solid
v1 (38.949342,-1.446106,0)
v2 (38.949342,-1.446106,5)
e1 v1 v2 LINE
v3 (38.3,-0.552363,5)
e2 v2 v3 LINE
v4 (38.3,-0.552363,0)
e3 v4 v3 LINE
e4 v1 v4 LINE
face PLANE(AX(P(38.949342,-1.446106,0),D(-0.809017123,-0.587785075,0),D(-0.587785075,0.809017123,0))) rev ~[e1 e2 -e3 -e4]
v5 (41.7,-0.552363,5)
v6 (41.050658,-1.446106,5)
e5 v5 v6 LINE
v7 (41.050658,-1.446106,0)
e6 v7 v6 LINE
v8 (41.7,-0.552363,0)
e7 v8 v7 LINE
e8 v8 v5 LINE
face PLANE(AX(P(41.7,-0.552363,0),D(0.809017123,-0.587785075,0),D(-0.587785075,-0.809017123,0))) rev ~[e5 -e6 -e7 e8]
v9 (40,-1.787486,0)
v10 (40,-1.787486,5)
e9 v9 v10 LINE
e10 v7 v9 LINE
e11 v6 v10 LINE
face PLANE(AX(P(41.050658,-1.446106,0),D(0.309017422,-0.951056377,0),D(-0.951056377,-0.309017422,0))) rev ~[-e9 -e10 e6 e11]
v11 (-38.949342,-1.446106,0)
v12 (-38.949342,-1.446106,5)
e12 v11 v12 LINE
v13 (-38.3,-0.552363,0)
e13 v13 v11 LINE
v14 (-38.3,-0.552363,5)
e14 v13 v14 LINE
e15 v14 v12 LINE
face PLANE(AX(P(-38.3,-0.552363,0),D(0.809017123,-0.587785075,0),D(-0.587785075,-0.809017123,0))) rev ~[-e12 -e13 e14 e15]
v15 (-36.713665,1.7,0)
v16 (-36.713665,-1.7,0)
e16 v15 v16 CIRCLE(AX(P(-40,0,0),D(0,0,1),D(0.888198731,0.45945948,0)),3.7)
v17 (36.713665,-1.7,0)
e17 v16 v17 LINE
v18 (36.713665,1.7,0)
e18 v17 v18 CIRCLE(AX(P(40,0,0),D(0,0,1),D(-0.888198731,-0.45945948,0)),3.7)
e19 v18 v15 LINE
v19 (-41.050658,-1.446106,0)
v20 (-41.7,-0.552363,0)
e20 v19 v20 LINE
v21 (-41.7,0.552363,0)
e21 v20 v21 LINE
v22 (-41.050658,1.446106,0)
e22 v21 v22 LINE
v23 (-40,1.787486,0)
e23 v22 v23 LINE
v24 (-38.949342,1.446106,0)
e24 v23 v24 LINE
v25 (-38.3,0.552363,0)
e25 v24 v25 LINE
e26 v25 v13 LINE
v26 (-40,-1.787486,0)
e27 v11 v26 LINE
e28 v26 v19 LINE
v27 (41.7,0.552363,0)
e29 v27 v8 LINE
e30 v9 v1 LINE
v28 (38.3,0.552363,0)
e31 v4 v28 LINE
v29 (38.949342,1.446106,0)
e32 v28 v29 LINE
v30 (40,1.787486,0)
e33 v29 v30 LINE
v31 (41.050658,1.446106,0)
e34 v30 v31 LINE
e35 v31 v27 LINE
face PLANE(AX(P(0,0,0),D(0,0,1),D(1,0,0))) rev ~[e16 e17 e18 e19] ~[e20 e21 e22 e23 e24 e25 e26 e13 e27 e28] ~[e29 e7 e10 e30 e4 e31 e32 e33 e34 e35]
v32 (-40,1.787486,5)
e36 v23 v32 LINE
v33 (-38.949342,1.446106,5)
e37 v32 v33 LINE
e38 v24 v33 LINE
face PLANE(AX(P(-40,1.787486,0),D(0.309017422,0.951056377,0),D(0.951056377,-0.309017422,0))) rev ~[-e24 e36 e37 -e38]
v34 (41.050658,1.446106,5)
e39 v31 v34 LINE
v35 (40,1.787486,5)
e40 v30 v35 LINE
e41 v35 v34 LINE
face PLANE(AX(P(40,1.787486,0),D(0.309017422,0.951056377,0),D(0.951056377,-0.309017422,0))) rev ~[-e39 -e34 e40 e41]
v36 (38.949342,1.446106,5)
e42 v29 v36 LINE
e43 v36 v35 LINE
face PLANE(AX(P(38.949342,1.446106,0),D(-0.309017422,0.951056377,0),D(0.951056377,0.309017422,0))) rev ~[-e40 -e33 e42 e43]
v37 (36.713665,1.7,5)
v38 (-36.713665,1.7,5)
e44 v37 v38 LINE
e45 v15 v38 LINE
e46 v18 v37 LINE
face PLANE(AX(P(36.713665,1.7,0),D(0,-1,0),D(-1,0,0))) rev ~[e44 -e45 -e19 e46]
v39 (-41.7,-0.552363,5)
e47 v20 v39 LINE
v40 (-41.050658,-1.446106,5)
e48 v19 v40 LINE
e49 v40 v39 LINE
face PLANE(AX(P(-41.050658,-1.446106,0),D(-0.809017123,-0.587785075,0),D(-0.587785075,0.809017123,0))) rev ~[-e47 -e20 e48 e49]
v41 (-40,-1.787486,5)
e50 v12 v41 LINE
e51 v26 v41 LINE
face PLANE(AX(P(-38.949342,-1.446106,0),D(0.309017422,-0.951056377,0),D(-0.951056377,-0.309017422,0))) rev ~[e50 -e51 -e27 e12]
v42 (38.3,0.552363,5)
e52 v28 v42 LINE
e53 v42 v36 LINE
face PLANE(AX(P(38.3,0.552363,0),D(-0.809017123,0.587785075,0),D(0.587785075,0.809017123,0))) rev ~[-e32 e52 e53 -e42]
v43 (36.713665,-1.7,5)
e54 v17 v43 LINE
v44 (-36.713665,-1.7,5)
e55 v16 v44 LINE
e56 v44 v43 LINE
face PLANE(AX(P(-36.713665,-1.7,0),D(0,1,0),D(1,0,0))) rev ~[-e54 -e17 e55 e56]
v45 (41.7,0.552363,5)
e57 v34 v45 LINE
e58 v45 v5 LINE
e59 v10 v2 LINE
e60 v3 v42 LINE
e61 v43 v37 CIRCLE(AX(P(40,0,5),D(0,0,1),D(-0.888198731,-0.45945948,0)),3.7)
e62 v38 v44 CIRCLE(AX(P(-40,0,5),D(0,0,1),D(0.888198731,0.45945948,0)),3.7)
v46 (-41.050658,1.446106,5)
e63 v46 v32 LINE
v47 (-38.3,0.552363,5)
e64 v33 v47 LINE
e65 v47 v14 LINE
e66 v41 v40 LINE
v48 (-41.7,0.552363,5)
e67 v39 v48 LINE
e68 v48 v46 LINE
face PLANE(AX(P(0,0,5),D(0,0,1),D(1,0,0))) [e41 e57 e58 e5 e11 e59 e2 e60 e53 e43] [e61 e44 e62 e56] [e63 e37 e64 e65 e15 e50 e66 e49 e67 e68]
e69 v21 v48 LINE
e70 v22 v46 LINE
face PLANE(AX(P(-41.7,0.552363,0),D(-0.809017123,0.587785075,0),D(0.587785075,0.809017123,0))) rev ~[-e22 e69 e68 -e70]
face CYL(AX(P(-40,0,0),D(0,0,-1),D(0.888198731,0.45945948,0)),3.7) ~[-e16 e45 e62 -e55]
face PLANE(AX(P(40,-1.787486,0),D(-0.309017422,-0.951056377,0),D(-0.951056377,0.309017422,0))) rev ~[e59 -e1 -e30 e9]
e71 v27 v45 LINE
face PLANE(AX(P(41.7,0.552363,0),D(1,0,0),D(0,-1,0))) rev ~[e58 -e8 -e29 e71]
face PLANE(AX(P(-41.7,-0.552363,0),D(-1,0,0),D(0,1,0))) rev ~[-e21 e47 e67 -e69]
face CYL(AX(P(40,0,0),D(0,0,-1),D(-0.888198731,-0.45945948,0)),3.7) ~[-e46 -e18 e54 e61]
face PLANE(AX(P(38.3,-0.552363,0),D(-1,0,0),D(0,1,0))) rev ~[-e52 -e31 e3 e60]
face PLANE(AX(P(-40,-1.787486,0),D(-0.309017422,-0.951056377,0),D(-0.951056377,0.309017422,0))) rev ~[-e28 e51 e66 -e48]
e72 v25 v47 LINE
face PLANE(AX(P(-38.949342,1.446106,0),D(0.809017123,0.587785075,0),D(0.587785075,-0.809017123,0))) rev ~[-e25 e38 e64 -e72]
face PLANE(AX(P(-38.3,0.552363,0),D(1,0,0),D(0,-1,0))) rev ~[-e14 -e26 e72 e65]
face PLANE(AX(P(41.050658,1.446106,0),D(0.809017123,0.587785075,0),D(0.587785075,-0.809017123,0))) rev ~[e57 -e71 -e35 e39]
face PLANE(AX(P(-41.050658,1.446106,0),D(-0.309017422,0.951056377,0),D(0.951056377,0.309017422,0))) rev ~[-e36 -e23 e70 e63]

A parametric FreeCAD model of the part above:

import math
import FreeCAD as App
import Part
import Sketcher
Q = App.Units.Quantity


def add_polygon(sketch, points):
    """Adds a closed chain of lines whose ends are joined by coincident constraints."""
    first, n = sketch.GeometryCount, len(points)
    for a, b in zip(points, points[1:] + points[:1]):
        sketch.addGeometry(Part.LineSegment(App.Vector(*a, 0), App.Vector(*b, 0)), False)
    for i in range(n):
        sketch.addConstraint(Sketcher.Constraint("Coincident", first + i, 2, first + (i + 1) % n, 1))

doc = App.newDocument("Part")
body = doc.addObject("PartDesign::Body", "Body")

# Sketch on XY plane
sketch1 = body.newObject("Sketcher::SketchObject", "Sketch")
sketch1.AttachmentSupport = (doc.getObject("XY_Plane"), [""])
sketch1.MapMode = "FlatFace"
sketch1.addGeometry(Part.LineSegment(App.Vector(36.7, 1.7, 0), App.Vector(-36.7, 1.7, 0)), False)  # 0
sketch1.addGeometry(Part.ArcOfCircle(Part.Circle(App.Vector(-40, 0, 0), App.Vector(0, 0, 1), 3.7), math.radians(27), math.radians(333)), False)  # 1
sketch1.addGeometry(Part.LineSegment(App.Vector(-36.7, -1.7, 0), App.Vector(36.7, -1.7, 0)), False)  # 2
sketch1.addGeometry(Part.ArcOfCircle(Part.Circle(App.Vector(40, 0, 0), App.Vector(0, 0, 1), 3.7), math.radians(-153), math.radians(153)), False)  # 3
add_polygon(sketch1, [(-40, -1.8), (-41.1, -1.4), (-41.7, -0.6), (-41.7, 0.6), (-41.1, 1.4), (-40, 1.8), (-38.9, 1.4), (-38.3, 0.6), (-38.3, -0.6), (-38.9, -1.4)])  # lines 4-13
add_polygon(sketch1, [(40, 1.8), (41.1, 1.4), (41.7, 0.6), (41.7, -0.6), (41.1, -1.4), (40, -1.8), (38.9, -1.4), (38.3, -0.6), (38.3, 0.6), (38.9, 1.4)])  # lines 14-23
sketch1.addConstraint(Sketcher.Constraint("Coincident", 0, 2, 1, 1))
sketch1.addConstraint(Sketcher.Constraint("Coincident", 1, 2, 2, 1))
sketch1.addConstraint(Sketcher.Constraint("Coincident", 2, 2, 3, 1))
sketch1.addConstraint(Sketcher.Constraint("Coincident", 3, 2, 0, 1))
sketch1.addConstraint(Sketcher.Constraint("Horizontal", 0))
sketch1.addConstraint(Sketcher.Constraint("Horizontal", 2))
sketch1.addConstraint(Sketcher.Constraint("Vertical", 6))
sketch1.addConstraint(Sketcher.Constraint("Vertical", 11))
sketch1.addConstraint(Sketcher.Constraint("Vertical", 16))
sketch1.addConstraint(Sketcher.Constraint("Vertical", 21))
sketch1.addConstraint(Sketcher.Constraint("Equal", 1, 3))
sketch1.addConstraint(Sketcher.Constraint("Symmetric", 1, 3, 3, 3, -1, 1))
sketch1.addConstraint(Sketcher.Constraint("Symmetric", 4, 2, 14, 2, -1, 1))
sketch1.addConstraint(Sketcher.Constraint("Symmetric", 5, 2, 15, 2, -1, 1))
sketch1.addConstraint(Sketcher.Constraint("Symmetric", 7, 2, 17, 2, -1, 1))
sketch1.addConstraint(Sketcher.Constraint("Symmetric", 8, 2, 18, 2, -1, 1))
sketch1.addConstraint(Sketcher.Constraint("Symmetric", 9, 2, 19, 2, -1, 1))
sketch1.addConstraint(Sketcher.Constraint("Symmetric", 10, 2, 20, 2, -1, 1))
sketch1.addConstraint(Sketcher.Constraint("Symmetric", 12, 2, 22, 2, -1, 1))
sketch1.addConstraint(Sketcher.Constraint("Symmetric", 13, 2, 23, 2, -1, 1))
sketch1.addConstraint(Sketcher.Constraint("Symmetric", 7, 2, 14, 2, -2))
sketch1.addConstraint(Sketcher.Constraint("Symmetric", 13, 2, 18, 2, -2))
sketch1.addConstraint(Sketcher.Constraint("Symmetric", 12, 2, 19, 2, -2))
sketch1.addConstraint(Sketcher.Constraint("Symmetric", 0, 2, 1, 2, -1))
sketch1.addConstraint(Sketcher.Constraint("Parallel", 4, 9))
sketch1.addConstraint(Sketcher.Constraint("Parallel", 5, 10))
sketch1.addConstraint(Sketcher.Constraint("Parallel", 7, 12))
sketch1.addConstraint(Sketcher.Constraint("Parallel", 12, 17))
sketch1.addConstraint(Sketcher.Constraint("Parallel", 17, 22))
sketch1.addConstraint(Sketcher.Constraint("Horizontal", 7, 2, 9, 2))
sketch1.addConstraint(Sketcher.Constraint("Horizontal", 6, 2, 10, 2))
sketch1.addConstraint(Sketcher.Constraint("Horizontal", 5, 2, 11, 2))
sketch1.addConstraint(Sketcher.Constraint("Vertical", 1, 3, 8, 2))
sketch1.addConstraint(Sketcher.Constraint("Equal", 4, 5))
sketch1.addConstraint(Sketcher.Constraint("Radius", 1, Q("3.7 mm")))
sketch1.addConstraint(Sketcher.Constraint("Angle", 5, Q("125.999987 deg")))
sketch1.addConstraint(Sketcher.Constraint("DistanceX", 1, 3, -1, 1, Q("40 mm")))
sketch1.addConstraint(Sketcher.Constraint("DistanceY", -1, 1, 0, 2, Q("1.7 mm")))
sketch1.addConstraint(Sketcher.Constraint("DistanceX", 5, 2, -1, 1, Q("41.7 mm")))
sketch1.addConstraint(Sketcher.Constraint("DistanceY", 6, 1, 6, 2, Q("1.104726 mm")))
sketch1.addConstraint(Sketcher.Constraint("DistanceY", 4, 2, 6, 2, Q("1.998469 mm")))
pad1 = body.newObject("PartDesign::Pad", "Pad")
pad1.Profile = sketch1
pad1.Length = 5

doc.recompute()
